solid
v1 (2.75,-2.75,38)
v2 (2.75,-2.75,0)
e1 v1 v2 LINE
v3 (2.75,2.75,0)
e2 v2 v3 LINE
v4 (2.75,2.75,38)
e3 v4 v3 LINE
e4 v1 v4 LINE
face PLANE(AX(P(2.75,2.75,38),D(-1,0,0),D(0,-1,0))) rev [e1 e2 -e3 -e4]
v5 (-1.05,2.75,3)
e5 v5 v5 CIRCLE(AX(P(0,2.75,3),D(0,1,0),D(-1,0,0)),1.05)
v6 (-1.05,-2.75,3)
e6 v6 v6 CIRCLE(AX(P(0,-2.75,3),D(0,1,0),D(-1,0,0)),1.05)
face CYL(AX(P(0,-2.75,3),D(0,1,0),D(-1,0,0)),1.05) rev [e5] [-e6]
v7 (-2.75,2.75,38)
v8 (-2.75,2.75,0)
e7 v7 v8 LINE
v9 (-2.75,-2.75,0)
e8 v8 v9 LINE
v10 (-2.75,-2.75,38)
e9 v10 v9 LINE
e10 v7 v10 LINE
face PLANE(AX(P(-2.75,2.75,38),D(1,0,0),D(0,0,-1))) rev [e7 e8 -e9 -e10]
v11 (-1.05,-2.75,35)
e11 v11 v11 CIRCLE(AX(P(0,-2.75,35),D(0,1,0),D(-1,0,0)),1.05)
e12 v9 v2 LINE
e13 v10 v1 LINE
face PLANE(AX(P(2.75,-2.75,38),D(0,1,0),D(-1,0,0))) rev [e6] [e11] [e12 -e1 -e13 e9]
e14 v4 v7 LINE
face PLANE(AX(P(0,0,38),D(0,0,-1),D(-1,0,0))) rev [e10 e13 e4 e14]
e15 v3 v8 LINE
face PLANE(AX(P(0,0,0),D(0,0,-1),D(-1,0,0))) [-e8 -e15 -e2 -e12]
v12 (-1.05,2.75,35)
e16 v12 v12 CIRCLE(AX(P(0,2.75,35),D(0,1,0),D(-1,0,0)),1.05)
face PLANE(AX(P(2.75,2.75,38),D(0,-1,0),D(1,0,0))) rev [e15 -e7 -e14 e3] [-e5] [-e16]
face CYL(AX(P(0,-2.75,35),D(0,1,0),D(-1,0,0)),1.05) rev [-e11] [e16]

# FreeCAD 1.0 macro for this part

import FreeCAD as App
import Part
import Sketcher

V = App.Vector
Q = App.Units.Quantity

doc = App.newDocument("Part")
params = doc.addObject("Spreadsheet::Sheet", "Params")
for row, (alias, value) in enumerate([
    ("sketch1_width", "5.5 mm"),
    ("pad1_length", "38 mm"),
    ("sketch2_diameter", "2.1 mm"),
    ("pocket1_length", "5.5 mm"),
], start=1):
    params.set(f"A{row}", alias)
    params.set(f"B{row}", "=" + value)
    params.setAlias(f"B{row}", alias)

body = doc.addObject("PartDesign::Body", "Body")

# Sketch on XY plane
sketch1 = body.newObject("Sketcher::SketchObject", "Sketch")
sketch1.AttachmentSupport = (doc.getObject("XY_Plane"), [""])
sketch1.MapMode = "FlatFace"
sketch1.addGeometry(Part.LineSegment(V(-3, 3, 0), V(-3, -3, 0)), False)
sketch1.addGeometry(Part.LineSegment(V(-3, -3, 0), V(3, -3, 0)), False)
sketch1.addGeometry(Part.LineSegment(V(3, -3, 0), V(3, 3, 0)), False)
sketch1.addGeometry(Part.LineSegment(V(3, 3, 0), V(-3, 3, 0)), False)
sketch1.addConstraint(Sketcher.Constraint("Coincident", 0, 2, 1, 1))
sketch1.addConstraint(Sketcher.Constraint("Coincident", 1, 2, 2, 1))
sketch1.addConstraint(Sketcher.Constraint("Coincident", 2, 2, 3, 1))
sketch1.addConstraint(Sketcher.Constraint("Coincident", 3, 2, 0, 1))
sketch1.addConstraint(Sketcher.Constraint("Vertical", 0))
sketch1.addConstraint(Sketcher.Constraint("Horizontal", 1))
sketch1.addConstraint(Sketcher.Constraint("Vertical", 2))
sketch1.addConstraint(Sketcher.Constraint("Horizontal", 3))
sketch1.addConstraint(Sketcher.Constraint("Symmetric", 0, 2, 2, 2, -1, 1))
sketch1.addConstraint(Sketcher.Constraint("Equal", 3, 0))
sketch1.addConstraint(Sketcher.Constraint("DistanceX", 1, 1, 1, 2, Q("5.5 mm")))
sketch1.setExpression("Constraints[10]", "Params.sketch1_width")
pad1 = body.newObject("PartDesign::Pad", "Pad")
pad1.Profile = sketch1
pad1.setExpression("Length", "Params.pad1_length")

# Sketch on XZ plane
sketch2 = body.newObject("Sketcher::SketchObject", "Sketch001")
sketch2.AttachmentSupport = (doc.getObject("XZ_Plane"), [""])
sketch2.MapMode = "FlatFace"
sketch2.AttachmentOffset = App.Placement(V(0, 0, -2.75), App.Rotation())
sketch2.addGeometry(Part.Circle(V(0, 3, 0), V(0, 0, 1), 1.1), False)
sketch2.addGeometry(Part.Circle(V(0, 35, 0), V(0, 0, 1), 1.1), False)
sketch2.addConstraint(Sketcher.Constraint("Equal", 0, 1))
sketch2.addConstraint(Sketcher.Constraint("PointOnObject", 0, 3, -2))
sketch2.addConstraint(Sketcher.Constraint("PointOnObject", 1, 3, -2))
sketch2.addConstraint(Sketcher.Constraint("Diameter", 0, Q("2.1 mm")))
sketch2.addConstraint(Sketcher.Constraint("DistanceY", -1, 1, 0, 3, Q("3 mm")))
sketch2.addConstraint(Sketcher.Constraint("DistanceY", -1, 1, 1, 3, Q("35 mm")))
sketch2.setExpression("Constraints[3]", "Params.sketch2_diameter")
pocket1 = body.newObject("PartDesign::Pocket", "Pocket")
pocket1.Profile = sketch2
pocket1.setExpression("Length", "Params.pocket1_length")
pocket1.Reversed = True

doc.recompute()
